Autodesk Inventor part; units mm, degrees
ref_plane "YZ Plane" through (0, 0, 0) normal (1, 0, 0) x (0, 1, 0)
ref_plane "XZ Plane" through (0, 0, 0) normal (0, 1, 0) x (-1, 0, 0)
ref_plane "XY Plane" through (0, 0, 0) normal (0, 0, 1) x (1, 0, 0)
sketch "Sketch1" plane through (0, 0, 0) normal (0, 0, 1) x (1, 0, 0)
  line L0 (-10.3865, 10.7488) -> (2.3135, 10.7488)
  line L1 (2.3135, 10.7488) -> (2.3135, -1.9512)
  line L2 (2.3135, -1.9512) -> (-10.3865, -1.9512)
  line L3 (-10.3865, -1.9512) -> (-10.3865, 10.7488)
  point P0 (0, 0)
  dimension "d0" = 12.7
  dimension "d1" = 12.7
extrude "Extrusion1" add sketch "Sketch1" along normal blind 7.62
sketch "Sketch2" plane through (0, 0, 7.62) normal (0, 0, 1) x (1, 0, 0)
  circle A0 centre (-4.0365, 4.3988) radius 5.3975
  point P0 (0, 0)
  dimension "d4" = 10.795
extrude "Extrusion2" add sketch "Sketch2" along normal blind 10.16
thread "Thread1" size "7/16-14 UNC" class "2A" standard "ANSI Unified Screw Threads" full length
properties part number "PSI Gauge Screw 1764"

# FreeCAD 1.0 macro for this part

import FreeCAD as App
import Part
import Sketcher
Q = App.Units.Quantity


def add_polygon(sketch, points):
    """Adds a closed chain of lines whose ends are joined by coincident constraints."""
    first, n = sketch.GeometryCount, len(points)
    for a, b in zip(points, points[1:] + points[:1]):
        sketch.addGeometry(Part.LineSegment(App.Vector(*a, 0), App.Vector(*b, 0)), False)
    for i in range(n):
        sketch.addConstraint(Sketcher.Constraint("Coincident", first + i, 2, first + (i + 1) % n, 1))

doc = App.newDocument("Part")
params = doc.addObject("Spreadsheet::Sheet", "Params")
for row, (alias, value) in enumerate([
    ("sketch1_width", "0.5 in"),
    ("pad1_length", "0.3 in"),
    ("sketch2_diameter", "0.425 in"),
    ("pad2_length", "0.4 in"),
], start=1):
    params.set(f"A{row}", alias)
    params.set(f"B{row}", "=" + value)
    params.setAlias(f"B{row}", alias)

body = doc.addObject("PartDesign::Body", "Body")

sketch1 = body.newObject("Sketcher::SketchObject", "Sketch")
sketch1.AttachmentSupport = (doc.getObject("XY_Plane"), [""])
sketch1.MapMode = "FlatFace"
add_polygon(sketch1, [(2, 11), (-10, 11), (-10, -2), (2, -2)])
sketch1.addConstraint([
    Sketcher.Constraint("Horizontal", 0),
    Sketcher.Constraint("Vertical", 1),
    Sketcher.Constraint("Horizontal", 2),
    Sketcher.Constraint("Vertical", 3),
    Sketcher.Constraint("Equal", 2, 1),
    Sketcher.Constraint("DistanceX", 0, 2, 0, 1, Q("0.5 in")),
    Sketcher.Constraint("DistanceX", 0, 2, -1, 1, 10.3865),
    Sketcher.Constraint("DistanceY", -1, 1, 0, 2, 10.7488),
])
sketch1.setExpression("Constraints[9]", "Params.sketch1_width")
pad1 = body.newObject("PartDesign::Pad", "Pad")
pad1.Profile = sketch1
pad1.setExpression("Length", "Params.pad1_length")

sketch2 = body.newObject("Sketcher::SketchObject", "Sketch001")
sketch2.AttachmentSupport = (doc.getObject("XY_Plane"), [""])
sketch2.MapMode = "FlatFace"
sketch2.AttachmentOffset = App.Placement(App.Vector(0, 0, 0.3 * 25.4), App.Rotation())
sketch2.addGeometry(Part.Circle(App.Vector(-4, 4, 0), App.Vector(0, 0, 1), 5), False)
sketch2.addConstraint([
    Sketcher.Constraint("Diameter", 0, Q("0.425 in")),
    Sketcher.Constraint("DistanceX", 0, 3, -1, 1, 4.0365),
    Sketcher.Constraint("DistanceY", -1, 1, 0, 3, 4.3988),
])
sketch2.setExpression("Constraints[0]", "Params.sketch2_diameter")
pad2 = body.newObject("PartDesign::Pad", "Pad001")
pad2.Profile = sketch2
pad2.setExpression("Length", "Params.pad2_length")

doc.recompute()
